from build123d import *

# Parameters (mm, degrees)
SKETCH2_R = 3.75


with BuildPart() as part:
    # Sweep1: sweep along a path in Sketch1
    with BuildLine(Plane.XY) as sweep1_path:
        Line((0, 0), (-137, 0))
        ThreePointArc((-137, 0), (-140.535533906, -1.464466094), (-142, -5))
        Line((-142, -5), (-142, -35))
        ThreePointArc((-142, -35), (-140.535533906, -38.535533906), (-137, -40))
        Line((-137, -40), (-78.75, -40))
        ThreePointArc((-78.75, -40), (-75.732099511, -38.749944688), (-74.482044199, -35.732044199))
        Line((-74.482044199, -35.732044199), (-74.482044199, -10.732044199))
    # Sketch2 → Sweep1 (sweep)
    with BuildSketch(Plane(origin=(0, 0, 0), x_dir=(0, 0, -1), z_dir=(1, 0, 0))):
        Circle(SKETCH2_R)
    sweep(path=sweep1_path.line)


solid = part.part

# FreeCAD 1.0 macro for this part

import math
import FreeCAD as App
import Part
import Sketcher

V = App.Vector

doc = App.newDocument("Part")
body = doc.addObject("PartDesign::Body", "Body")

# Sketch on YZ plane
sketch1 = doc.addObject("Sketcher::SketchObject", "Sketch")
body.addObject(sketch1)
sketch1.AttachmentSupport = (doc.YZ_Plane, [""])
sketch1.MapMode = "FlatFace"
sketch1.addGeometry(Part.Circle(V(0, 0, 0), V(0, 0, 1), 3.8), False)
sketch1.addConstraint([
    Sketcher.Constraint("Coincident", 0, 3, -1, 1),
    Sketcher.Constraint("Diameter", 0, 7.5),
])

# Sketch on XY plane
sketch2 = doc.addObject("Sketcher::SketchObject", "Sketch001")
body.addObject(sketch2)
sketch2.AttachmentSupport = (doc.XY_Plane, [""])
sketch2.MapMode = "FlatFace"
sketch2.addGeometry([
    Part.LineSegment(V(0, 0, 0), V(-137, 0, 0)),  # 0
    Part.ArcOfCircle(Part.Circle(V(-137, -5, 0), V(0, 0, 1), 5), math.radians(90), math.radians(180)),  # 1
    Part.LineSegment(V(-142, -5, 0), V(-142, -35, 0)),  # 2
    Part.ArcOfCircle(Part.Circle(V(-137, -35, 0), V(0, 0, 1), 5), math.radians(180), math.radians(270)),  # 3
    Part.LineSegment(V(-137, -40, 0), V(-78.8, -40, 0)),  # 4
    Part.ArcOfCircle(Part.Circle(V(-78.7, -35.7, 0), V(0, 0, 1), 4.3), math.radians(-90), math.radians(0)),  # 5
    Part.LineSegment(V(-74.5, -35.7, 0), V(-74.5, -10.7, 0)),  # 6
], False)
sketch2.addConstraint([
    Sketcher.Constraint("Tangent", 0, 2, 1, 1),
    Sketcher.Constraint("Tangent", 1, 2, 2, 1),
    Sketcher.Constraint("Tangent", 2, 2, 3, 1),
    Sketcher.Constraint("Tangent", 3, 2, 4, 1),
    Sketcher.Constraint("Tangent", 4, 2, 5, 1),
    Sketcher.Constraint("Tangent", 5, 2, 6, 1),
    Sketcher.Constraint("Horizontal", 0),
    Sketcher.Constraint("Vertical", 2),
    Sketcher.Constraint("Horizontal", 4),
    Sketcher.Constraint("Vertical", 6),
    Sketcher.Constraint("Coincident", 0, 1, -1, 1),
    Sketcher.Constraint("Equal", 1, 3),
    Sketcher.Constraint("Radius", 1, 5.0),
    Sketcher.Constraint("DistanceX", 0, 2, 0, 1, 137.0),
    Sketcher.Constraint("DistanceY", 2, 2, 2, 1, 30.0),
    Sketcher.Constraint("DistanceY", 6, 1, 6, 2, 25.0),
    Sketcher.Constraint("DistanceX", 4, 1, 4, 2, 58.25),
    Sketcher.Constraint("Radius", 5, 4.267956),
])
doc.recompute()

additivepipe = doc.addObject("PartDesign::AdditivePipe", "AdditivePipe")
body.addObject(additivepipe)
additivepipe.Profile = sketch1
additivepipe.Spine = (sketch2, ["Edge1", "Edge2", "Edge3", "Edge4", "Edge5", "Edge6", "Edge7"])

doc.recompute()
